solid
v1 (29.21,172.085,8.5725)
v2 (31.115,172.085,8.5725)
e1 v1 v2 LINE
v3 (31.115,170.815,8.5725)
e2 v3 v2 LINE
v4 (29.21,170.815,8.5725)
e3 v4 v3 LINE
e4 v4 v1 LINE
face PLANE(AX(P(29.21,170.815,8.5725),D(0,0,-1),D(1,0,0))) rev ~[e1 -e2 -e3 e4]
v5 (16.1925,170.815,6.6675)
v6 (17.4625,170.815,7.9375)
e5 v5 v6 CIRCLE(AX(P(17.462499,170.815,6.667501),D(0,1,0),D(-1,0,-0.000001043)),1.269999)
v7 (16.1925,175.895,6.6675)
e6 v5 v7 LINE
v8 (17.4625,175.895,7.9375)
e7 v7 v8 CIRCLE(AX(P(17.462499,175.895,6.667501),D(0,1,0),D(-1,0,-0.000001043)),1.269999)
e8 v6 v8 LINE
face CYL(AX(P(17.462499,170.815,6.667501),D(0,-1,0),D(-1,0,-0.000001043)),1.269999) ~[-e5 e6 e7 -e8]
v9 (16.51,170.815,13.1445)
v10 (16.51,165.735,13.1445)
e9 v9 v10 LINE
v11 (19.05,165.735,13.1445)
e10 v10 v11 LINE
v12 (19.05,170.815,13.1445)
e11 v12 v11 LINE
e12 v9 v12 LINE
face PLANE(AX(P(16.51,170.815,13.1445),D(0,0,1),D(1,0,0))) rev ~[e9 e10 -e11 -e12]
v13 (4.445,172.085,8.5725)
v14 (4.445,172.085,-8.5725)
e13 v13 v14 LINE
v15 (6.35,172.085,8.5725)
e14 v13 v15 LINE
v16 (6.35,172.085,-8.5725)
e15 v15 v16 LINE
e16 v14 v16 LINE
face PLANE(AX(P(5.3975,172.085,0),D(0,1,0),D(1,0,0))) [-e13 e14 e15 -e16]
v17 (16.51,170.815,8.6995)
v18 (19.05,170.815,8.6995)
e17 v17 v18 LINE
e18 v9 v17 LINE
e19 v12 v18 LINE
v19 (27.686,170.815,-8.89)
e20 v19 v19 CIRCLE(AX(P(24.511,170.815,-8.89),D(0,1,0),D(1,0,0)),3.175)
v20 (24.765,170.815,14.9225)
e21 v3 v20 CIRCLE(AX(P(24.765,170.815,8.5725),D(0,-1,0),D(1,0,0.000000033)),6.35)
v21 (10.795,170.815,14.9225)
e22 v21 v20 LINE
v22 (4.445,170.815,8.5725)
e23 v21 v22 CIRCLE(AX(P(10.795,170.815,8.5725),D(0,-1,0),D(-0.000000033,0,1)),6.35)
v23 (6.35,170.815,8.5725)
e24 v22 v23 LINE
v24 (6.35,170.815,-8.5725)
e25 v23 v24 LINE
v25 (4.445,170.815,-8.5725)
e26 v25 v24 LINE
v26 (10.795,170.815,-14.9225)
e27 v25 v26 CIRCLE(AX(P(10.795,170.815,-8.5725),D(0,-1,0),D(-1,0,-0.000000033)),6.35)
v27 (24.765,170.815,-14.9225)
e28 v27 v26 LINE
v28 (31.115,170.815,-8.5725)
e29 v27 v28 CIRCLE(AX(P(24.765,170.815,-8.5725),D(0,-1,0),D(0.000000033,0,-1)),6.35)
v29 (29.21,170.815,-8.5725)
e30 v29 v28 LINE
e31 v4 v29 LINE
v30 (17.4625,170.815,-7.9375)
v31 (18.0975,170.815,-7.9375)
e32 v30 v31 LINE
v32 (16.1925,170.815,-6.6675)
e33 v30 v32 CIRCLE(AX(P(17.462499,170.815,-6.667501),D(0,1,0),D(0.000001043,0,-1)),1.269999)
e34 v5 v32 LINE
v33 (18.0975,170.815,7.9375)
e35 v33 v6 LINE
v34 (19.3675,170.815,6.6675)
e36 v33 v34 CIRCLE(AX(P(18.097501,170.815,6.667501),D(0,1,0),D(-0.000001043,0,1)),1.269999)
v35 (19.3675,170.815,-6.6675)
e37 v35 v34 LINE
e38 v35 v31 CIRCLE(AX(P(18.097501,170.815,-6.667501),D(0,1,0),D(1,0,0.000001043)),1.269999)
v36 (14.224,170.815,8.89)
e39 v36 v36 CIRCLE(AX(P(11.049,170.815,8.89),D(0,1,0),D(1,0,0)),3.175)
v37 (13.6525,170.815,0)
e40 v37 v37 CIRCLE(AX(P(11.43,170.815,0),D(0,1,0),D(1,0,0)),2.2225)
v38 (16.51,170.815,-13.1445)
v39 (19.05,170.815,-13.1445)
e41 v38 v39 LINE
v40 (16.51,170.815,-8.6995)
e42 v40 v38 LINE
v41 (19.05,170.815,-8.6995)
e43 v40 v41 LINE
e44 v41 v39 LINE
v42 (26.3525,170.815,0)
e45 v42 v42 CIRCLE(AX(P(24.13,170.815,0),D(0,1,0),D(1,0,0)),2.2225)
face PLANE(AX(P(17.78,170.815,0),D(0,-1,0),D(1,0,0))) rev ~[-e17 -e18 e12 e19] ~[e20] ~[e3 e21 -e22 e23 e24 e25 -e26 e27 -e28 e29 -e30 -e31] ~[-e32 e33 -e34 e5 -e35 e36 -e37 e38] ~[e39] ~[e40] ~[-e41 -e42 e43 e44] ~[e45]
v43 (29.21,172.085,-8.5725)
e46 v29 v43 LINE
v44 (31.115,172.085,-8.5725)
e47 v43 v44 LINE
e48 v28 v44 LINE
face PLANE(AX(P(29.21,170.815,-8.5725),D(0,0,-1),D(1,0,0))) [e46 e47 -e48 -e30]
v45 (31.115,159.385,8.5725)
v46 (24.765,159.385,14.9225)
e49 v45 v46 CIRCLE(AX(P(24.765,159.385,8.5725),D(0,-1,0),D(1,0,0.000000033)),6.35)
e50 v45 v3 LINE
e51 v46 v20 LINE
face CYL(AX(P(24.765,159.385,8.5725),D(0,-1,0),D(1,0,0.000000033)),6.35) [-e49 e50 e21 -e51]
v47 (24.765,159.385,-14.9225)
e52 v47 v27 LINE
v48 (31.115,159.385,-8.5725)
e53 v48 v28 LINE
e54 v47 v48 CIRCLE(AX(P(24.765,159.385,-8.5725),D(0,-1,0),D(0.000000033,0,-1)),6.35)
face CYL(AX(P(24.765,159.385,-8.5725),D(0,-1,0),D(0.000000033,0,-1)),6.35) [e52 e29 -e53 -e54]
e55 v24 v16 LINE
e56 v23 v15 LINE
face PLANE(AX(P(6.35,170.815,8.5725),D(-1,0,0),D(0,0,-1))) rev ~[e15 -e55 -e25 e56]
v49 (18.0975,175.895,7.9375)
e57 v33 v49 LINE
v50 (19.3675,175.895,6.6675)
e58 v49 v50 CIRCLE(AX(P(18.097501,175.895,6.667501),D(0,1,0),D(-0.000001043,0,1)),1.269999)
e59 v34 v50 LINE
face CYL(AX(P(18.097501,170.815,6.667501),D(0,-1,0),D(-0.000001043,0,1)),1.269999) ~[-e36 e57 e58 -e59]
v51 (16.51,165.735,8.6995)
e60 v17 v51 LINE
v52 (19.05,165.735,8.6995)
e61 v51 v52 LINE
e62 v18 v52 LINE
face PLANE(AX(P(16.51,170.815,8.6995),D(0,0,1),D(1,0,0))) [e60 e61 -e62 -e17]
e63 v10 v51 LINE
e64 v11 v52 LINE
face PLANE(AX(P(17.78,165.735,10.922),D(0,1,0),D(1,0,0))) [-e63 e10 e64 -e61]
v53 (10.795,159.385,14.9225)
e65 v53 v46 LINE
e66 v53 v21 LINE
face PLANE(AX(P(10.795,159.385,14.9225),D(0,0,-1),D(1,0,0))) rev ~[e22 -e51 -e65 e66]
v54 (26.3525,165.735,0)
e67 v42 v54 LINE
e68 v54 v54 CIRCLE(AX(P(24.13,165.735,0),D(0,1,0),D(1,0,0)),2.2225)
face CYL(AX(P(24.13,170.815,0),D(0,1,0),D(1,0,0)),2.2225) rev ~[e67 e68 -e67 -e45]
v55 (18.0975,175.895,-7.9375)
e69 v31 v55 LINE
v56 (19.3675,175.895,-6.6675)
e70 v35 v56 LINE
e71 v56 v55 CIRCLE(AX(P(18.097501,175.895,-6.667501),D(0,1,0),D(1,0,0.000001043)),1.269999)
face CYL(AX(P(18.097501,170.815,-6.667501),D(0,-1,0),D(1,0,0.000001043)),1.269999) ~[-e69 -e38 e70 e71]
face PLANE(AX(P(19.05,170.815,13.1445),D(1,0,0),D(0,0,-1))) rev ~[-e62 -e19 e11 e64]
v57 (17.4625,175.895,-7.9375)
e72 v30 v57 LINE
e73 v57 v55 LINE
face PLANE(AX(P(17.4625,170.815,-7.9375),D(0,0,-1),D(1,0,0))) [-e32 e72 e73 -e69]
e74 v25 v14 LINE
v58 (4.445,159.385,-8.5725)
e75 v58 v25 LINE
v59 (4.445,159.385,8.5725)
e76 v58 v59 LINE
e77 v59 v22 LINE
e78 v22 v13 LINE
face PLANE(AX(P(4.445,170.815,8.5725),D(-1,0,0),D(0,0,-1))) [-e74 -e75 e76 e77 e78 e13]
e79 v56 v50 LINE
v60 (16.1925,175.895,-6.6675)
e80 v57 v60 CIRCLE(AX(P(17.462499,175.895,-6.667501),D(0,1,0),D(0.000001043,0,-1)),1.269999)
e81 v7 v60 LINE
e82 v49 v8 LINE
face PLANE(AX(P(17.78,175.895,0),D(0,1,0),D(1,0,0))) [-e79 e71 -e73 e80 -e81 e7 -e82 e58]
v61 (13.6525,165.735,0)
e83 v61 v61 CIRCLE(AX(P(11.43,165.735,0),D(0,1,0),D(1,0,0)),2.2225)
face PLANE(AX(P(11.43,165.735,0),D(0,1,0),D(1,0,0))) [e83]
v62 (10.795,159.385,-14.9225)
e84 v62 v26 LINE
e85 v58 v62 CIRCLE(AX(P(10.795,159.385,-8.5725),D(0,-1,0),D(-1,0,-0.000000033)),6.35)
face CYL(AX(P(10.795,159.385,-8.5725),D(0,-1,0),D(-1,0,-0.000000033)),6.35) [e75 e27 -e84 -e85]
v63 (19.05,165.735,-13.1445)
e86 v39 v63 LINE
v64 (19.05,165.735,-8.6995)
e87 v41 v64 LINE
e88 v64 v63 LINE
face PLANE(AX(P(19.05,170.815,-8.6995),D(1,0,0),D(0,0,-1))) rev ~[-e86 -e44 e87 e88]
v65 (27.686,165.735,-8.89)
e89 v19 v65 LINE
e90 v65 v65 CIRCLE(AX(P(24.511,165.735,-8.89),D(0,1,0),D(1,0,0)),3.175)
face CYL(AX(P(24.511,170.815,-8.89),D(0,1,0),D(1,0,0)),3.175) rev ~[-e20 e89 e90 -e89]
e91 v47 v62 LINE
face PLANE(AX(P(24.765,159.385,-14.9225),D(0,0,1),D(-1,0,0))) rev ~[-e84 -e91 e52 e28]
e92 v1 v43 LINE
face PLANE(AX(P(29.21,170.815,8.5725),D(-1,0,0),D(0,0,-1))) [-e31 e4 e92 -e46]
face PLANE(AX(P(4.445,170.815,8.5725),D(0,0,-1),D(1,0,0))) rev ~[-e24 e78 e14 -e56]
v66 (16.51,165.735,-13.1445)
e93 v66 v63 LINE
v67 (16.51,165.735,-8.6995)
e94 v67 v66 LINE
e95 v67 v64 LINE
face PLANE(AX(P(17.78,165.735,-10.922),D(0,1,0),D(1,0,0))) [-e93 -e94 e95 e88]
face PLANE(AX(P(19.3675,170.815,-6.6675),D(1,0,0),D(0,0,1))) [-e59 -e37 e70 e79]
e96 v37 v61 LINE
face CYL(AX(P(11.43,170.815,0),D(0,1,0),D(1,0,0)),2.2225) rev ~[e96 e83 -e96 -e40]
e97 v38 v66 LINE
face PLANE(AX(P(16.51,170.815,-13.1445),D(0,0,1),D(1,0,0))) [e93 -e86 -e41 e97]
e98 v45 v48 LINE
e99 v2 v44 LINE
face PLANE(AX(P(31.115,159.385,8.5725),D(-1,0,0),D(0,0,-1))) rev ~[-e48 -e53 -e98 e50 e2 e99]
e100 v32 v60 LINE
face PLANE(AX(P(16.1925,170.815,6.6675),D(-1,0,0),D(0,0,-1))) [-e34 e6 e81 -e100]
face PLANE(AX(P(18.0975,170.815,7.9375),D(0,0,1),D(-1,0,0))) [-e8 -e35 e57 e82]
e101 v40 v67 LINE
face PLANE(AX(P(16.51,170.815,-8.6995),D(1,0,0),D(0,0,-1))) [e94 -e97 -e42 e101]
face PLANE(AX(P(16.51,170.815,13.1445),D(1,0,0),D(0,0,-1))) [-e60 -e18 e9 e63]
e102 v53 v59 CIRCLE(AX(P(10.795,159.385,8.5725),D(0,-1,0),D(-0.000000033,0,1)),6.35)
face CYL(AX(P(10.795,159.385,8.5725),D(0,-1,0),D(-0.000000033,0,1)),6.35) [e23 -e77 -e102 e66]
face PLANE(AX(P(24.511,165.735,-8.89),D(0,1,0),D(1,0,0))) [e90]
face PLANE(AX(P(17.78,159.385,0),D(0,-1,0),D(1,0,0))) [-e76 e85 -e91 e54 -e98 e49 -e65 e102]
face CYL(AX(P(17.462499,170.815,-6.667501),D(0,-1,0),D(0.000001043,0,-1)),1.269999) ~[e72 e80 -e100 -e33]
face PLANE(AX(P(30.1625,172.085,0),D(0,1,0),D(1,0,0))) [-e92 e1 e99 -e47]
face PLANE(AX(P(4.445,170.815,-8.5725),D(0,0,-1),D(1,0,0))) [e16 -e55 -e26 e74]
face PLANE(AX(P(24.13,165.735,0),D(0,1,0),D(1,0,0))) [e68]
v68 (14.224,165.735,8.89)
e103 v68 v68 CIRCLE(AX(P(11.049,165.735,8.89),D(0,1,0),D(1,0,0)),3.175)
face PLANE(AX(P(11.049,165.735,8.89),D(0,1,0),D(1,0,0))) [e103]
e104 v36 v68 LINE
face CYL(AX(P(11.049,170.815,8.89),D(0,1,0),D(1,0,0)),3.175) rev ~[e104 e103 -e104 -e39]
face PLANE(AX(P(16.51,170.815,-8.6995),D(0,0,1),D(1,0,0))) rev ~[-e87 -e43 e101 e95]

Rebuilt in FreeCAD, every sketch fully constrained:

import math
import FreeCAD as App
import Part
import Sketcher

V = App.Vector
Q = App.Units.Quantity

doc = App.newDocument("Part")
body = doc.addObject("PartDesign::Body", "Body")

# Sketch on XZ plane
sketch1 = body.newObject("Sketcher::SketchObject", "Sketch")
sketch1.AttachmentSupport = (doc.getObject("XZ_Plane"), [""])
sketch1.MapMode = "FlatFace"
sketch1.addGeometry(Part.ArcOfCircle(Part.Circle(V(-7, 9, 0), V(0, 0, 1), 6), math.radians(90), math.radians(180)), False)
sketch1.addGeometry(Part.LineSegment(V(-13, 9, 0), V(-13, -9, 0)), False)
sketch1.addGeometry(Part.ArcOfCircle(Part.Circle(V(-7, -9, 0), V(0, 0, 1), 6), math.radians(-180), math.radians(-90)), False)
sketch1.addGeometry(Part.LineSegment(V(-7, -15, 0), V(7, -15, 0)), False)
sketch1.addGeometry(Part.ArcOfCircle(Part.Circle(V(7, -9, 0), V(0, 0, 1), 6), math.radians(-90), math.radians(0)), False)
sketch1.addGeometry(Part.LineSegment(V(13, -9, 0), V(13, 9, 0)), False)
sketch1.addGeometry(Part.ArcOfCircle(Part.Circle(V(7, 9, 0), V(0, 0, 1), 6), math.radians(0), math.radians(90)), False)
sketch1.addGeometry(Part.LineSegment(V(7, 15, 0), V(-7, 15, 0)), False)
sketch1.addConstraint(Sketcher.Constraint("Tangent", 0, 2, 1, 1))
sketch1.addConstraint(Sketcher.Constraint("Tangent", 1, 2, 2, 1))
sketch1.addConstraint(Sketcher.Constraint("Tangent", 2, 2, 3, 1))
sketch1.addConstraint(Sketcher.Constraint("Tangent", 3, 2, 4, 1))
sketch1.addConstraint(Sketcher.Constraint("Tangent", 4, 2, 5, 1))
sketch1.addConstraint(Sketcher.Constraint("Tangent", 5, 2, 6, 1))
sketch1.addConstraint(Sketcher.Constraint("Tangent", 6, 2, 7, 1))
sketch1.addConstraint(Sketcher.Constraint("Tangent", 7, 2, 0, 1))
sketch1.addConstraint(Sketcher.Constraint("Vertical", 1))
sketch1.addConstraint(Sketcher.Constraint("Horizontal", 3))
sketch1.addConstraint(Sketcher.Constraint("Vertical", 5))
sketch1.addConstraint(Sketcher.Constraint("Horizontal", 7))
sketch1.addConstraint(Sketcher.Constraint("Equal", 0, 2))
sketch1.addConstraint(Sketcher.Constraint("Equal", 2, 4))
sketch1.addConstraint(Sketcher.Constraint("Equal", 4, 6))
sketch1.addConstraint(Sketcher.Constraint("Symmetric", 0, 3, 4, 3, -1, 1))
sketch1.addConstraint(Sketcher.Constraint("Radius", 0, Q("0.25 in")))
sketch1.addConstraint(Sketcher.Constraint("DistanceX", 3, 1, 3, 2, Q("0.55 in")))
sketch1.addConstraint(Sketcher.Constraint("DistanceY", 1, 2, 1, 1, Q("0.675 in")))
pad1 = body.newObject("PartDesign::Pad", "Pad")
pad1.Profile = sketch1
pad1.Length = Q("0.45 in")
pad1.Reversed = True

# Sketch on XZ plane
sketch2 = body.newObject("Sketcher::SketchObject", "Sketch001")
sketch2.AttachmentSupport = (doc.getObject("XZ_Plane"), [""])
sketch2.MapMode = "FlatFace"
sketch2.AttachmentOffset = App.Placement(V(0, 0, -0.45 * 25.4), App.Rotation())
sketch2.addGeometry(Part.LineSegment(V(-13.3, -8.6, 0), V(-13.3, 8.6, 0)), False)
sketch2.addGeometry(Part.LineSegment(V(-13.3, 8.6, 0), V(-11.4, 8.6, 0)), False)
sketch2.addGeometry(Part.LineSegment(V(-11.4, 8.6, 0), V(-11.4, -8.6, 0)), False)
sketch2.addGeometry(Part.LineSegment(V(-11.4, -8.6, 0), V(-13.3, -8.6, 0)), False)
sketch2.addGeometry(Part.LineSegment(V(11.4, -8.6, 0), V(11.4, 8.6, 0)), False)
sketch2.addGeometry(Part.LineSegment(V(11.4, 8.6, 0), V(13.3, 8.6, 0)), False)
sketch2.addGeometry(Part.LineSegment(V(13.3, 8.6, 0), V(13.3, -8.6, 0)), False)
sketch2.addGeometry(Part.LineSegment(V(13.3, -8.6, 0), V(11.4, -8.6, 0)), False)
sketch2.addConstraint(Sketcher.Constraint("Coincident", 0, 2, 1, 1))
sketch2.addConstraint(Sketcher.Constraint("Coincident", 1, 2, 2, 1))
sketch2.addConstraint(Sketcher.Constraint("Coincident", 2, 2, 3, 1))
sketch2.addConstraint(Sketcher.Constraint("Coincident", 3, 2, 0, 1))
sketch2.addConstraint(Sketcher.Constraint("Coincident", 4, 2, 5, 1))
sketch2.addConstraint(Sketcher.Constraint("Coincident", 5, 2, 6, 1))
sketch2.addConstraint(Sketcher.Constraint("Coincident", 6, 2, 7, 1))
sketch2.addConstraint(Sketcher.Constraint("Coincident", 7, 2, 4, 1))
sketch2.addConstraint(Sketcher.Constraint("Vertical", 0))
sketch2.addConstraint(Sketcher.Constraint("Horizontal", 1))
sketch2.addConstraint(Sketcher.Constraint("Vertical", 2))
sketch2.addConstraint(Sketcher.Constraint("Horizontal", 3))
sketch2.addConstraint(Sketcher.Constraint("Vertical", 4))
sketch2.addConstraint(Sketcher.Constraint("Horizontal", 5))
sketch2.addConstraint(Sketcher.Constraint("Vertical", 6))
sketch2.addConstraint(Sketcher.Constraint("Horizontal", 7))
sketch2.addConstraint(Sketcher.Constraint("Symmetric", 2, 2, 4, 2, -1, 1))
sketch2.addConstraint(Sketcher.Constraint("Symmetric", 0, 2, 6, 2, -1, 1))
sketch2.addConstraint(Sketcher.Constraint("Horizontal", 1, 2, 4, 2))
sketch2.addConstraint(Sketcher.Constraint("DistanceX", 1, 2, 4, 2, Q("0.9 in")))
sketch2.addConstraint(Sketcher.Constraint("DistanceX", 1, 1, 1, 2, Q("0.075 in")))
sketch2.addConstraint(Sketcher.Constraint("DistanceY", 0, 1, 0, 2, Q("0.675 in")))
pad2 = body.newObject("PartDesign::Pad", "Pad001")
pad2.Profile = sketch2
pad2.Length = Q("0.05 in")
pad2.Reversed = True

# Sketch on XZ plane
sketch3 = body.newObject("Sketcher::SketchObject", "Sketch002")
sketch3.AttachmentSupport = (doc.getObject("XZ_Plane"), [""])
sketch3.MapMode = "FlatFace"
sketch3.AttachmentOffset = App.Placement(V(0, 0, -0.45 * 25.4), App.Rotation())
sketch3.addGeometry(Part.ArcOfCircle(Part.Circle(V(-0.3, -6.7, 0), V(0, 0, 1), 1.3), math.radians(180), math.radians(270)), False)
sketch3.addGeometry(Part.LineSegment(V(-1.6, -6.7, 0), V(-1.6, 6.7, 0)), False)
sketch3.addGeometry(Part.ArcOfCircle(Part.Circle(V(-0.3, 6.7, 0), V(0, 0, 1), 1.3), math.radians(90), math.radians(180)), False)
sketch3.addGeometry(Part.LineSegment(V(-0.3, 7.9, 0), V(0.3, 7.9, 0)), False)
sketch3.addGeometry(Part.ArcOfCircle(Part.Circle(V(0.3, 6.7, 0), V(0, 0, 1), 1.3), math.radians(0), math.radians(90)), False)
sketch3.addGeometry(Part.LineSegment(V(1.6, 6.7, 0), V(1.6, -6.7, 0)), False)
sketch3.addGeometry(Part.ArcOfCircle(Part.Circle(V(0.3, -6.7, 0), V(0, 0, 1), 1.3), math.radians(-90), math.radians(0)), False)
sketch3.addGeometry(Part.LineSegment(V(0.3, -7.9, 0), V(-0.3, -7.9, 0)), False)
sketch3.addConstraint(Sketcher.Constraint("Tangent", 0, 1, 1, 1))
sketch3.addConstraint(Sketcher.Constraint("Tangent", 1, 2, 2, 2))
sketch3.addConstraint(Sketcher.Constraint("Tangent", 2, 1, 3, 1))
sketch3.addConstraint(Sketcher.Constraint("Tangent", 3, 2, 4, 2))
sketch3.addConstraint(Sketcher.Constraint("Tangent", 4, 1, 5, 1))
sketch3.addConstraint(Sketcher.Constraint("Tangent", 5, 2, 6, 2))
sketch3.addConstraint(Sketcher.Constraint("Tangent", 6, 1, 7, 1))
sketch3.addConstraint(Sketcher.Constraint("Tangent", 7, 2, 0, 2))
sketch3.addConstraint(Sketcher.Constraint("Vertical", 1))
sketch3.addConstraint(Sketcher.Constraint("Horizontal", 3))
sketch3.addConstraint(Sketcher.Constraint("Vertical", 5))
sketch3.addConstraint(Sketcher.Constraint("Horizontal", 7))
sketch3.addConstraint(Sketcher.Constraint("Equal", 0, 2))
sketch3.addConstraint(Sketcher.Constraint("Equal", 2, 4))
sketch3.addConstraint(Sketcher.Constraint("Equal", 4, 6))
sketch3.addConstraint(Sketcher.Constraint("Symmetric", 0, 3, 4, 3, -1, 1))
sketch3.addConstraint(Sketcher.Constraint("Radius", 0, Q("0.0499999 in")))
sketch3.addConstraint(Sketcher.Constraint("DistanceX", 3, 1, 3, 2, Q("0.025 in")))
sketch3.addConstraint(Sketcher.Constraint("DistanceY", 1, 1, 1, 2, Q("0.525 in")))
pad3 = body.newObject("PartDesign::Pad", "Pad002")
pad3.Profile = sketch3
pad3.Length = Q("0.2 in")
pad3.Reversed = True

# Sketch on XZ plane
sketch4 = body.newObject("Sketcher::SketchObject", "Sketch003")
sketch4.AttachmentSupport = (doc.getObject("XZ_Plane"), [""])
sketch4.MapMode = "FlatFace"
sketch4.AttachmentOffset = App.Placement(V(0, 0, -0.45 * 25.4), App.Rotation())
sketch4.addGeometry(Part.Circle(V(-6.7, 8.9, 0), V(0, 0, 1), 3.2), False)
sketch4.addGeometry(Part.Circle(V(6.7, -8.9, 0), V(0, 0, 1), 3.2), False)
sketch4.addGeometry(Part.Circle(V(-6.3, 0, 0), V(0, 0, 1), 2.2), False)
sketch4.addGeometry(Part.Circle(V(6.3, 0, 0), V(0, 0, 1), 2.2), False)
sketch4.addGeometry(Part.LineSegment(V(-1.3, 8.7, 0), V(-1.3, 13.1, 0)), False)
sketch4.addGeometry(Part.LineSegment(V(-1.3, 13.1, 0), V(1.3, 13.1, 0)), False)
sketch4.addGeometry(Part.LineSegment(V(1.3, 13.1, 0), V(1.3, 8.7, 0)), False)
sketch4.addGeometry(Part.LineSegment(V(1.3, 8.7, 0), V(-1.3, 8.7, 0)), False)
sketch4.addGeometry(Part.LineSegment(V(-1.3, -13.1, 0), V(-1.3, -8.7, 0)), False)
sketch4.addGeometry(Part.LineSegment(V(-1.3, -8.7, 0), V(1.3, -8.7, 0)), False)
sketch4.addGeometry(Part.LineSegment(V(1.3, -8.7, 0), V(1.3, -13.1, 0)), False)
sketch4.addGeometry(Part.LineSegment(V(1.3, -13.1, 0), V(-1.3, -13.1, 0)), False)
sketch4.addConstraint(Sketcher.Constraint("Coincident", 4, 2, 5, 1))
sketch4.addConstraint(Sketcher.Constraint("Coincident", 5, 2, 6, 1))
sketch4.addConstraint(Sketcher.Constraint("Coincident", 6, 2, 7, 1))
sketch4.addConstraint(Sketcher.Constraint("Coincident", 7, 2, 4, 1))
sketch4.addConstraint(Sketcher.Constraint("Coincident", 8, 2, 9, 1))
sketch4.addConstraint(Sketcher.Constraint("Coincident", 9, 2, 10, 1))
sketch4.addConstraint(Sketcher.Constraint("Coincident", 10, 2, 11, 1))
sketch4.addConstraint(Sketcher.Constraint("Coincident", 11, 2, 8, 1))
sketch4.addConstraint(Sketcher.Constraint("Vertical", 4))
sketch4.addConstraint(Sketcher.Constraint("Horizontal", 5))
sketch4.addConstraint(Sketcher.Constraint("Vertical", 6))
sketch4.addConstraint(Sketcher.Constraint("Horizontal", 7))
sketch4.addConstraint(Sketcher.Constraint("Vertical", 8))
sketch4.addConstraint(Sketcher.Constraint("Horizontal", 9))
sketch4.addConstraint(Sketcher.Constraint("Vertical", 10))
sketch4.addConstraint(Sketcher.Constraint("Horizontal", 11))
sketch4.addConstraint(Sketcher.Constraint("Equal", 0, 1))
sketch4.addConstraint(Sketcher.Constraint("Equal", 2, 3))
sketch4.addConstraint(Sketcher.Constraint("Symmetric", 0, 3, 1, 3, -1, 1))
sketch4.addConstraint(Sketcher.Constraint("Symmetric", 2, 3, 3, 3, -1, 1))
sketch4.addConstraint(Sketcher.Constraint("Symmetric", 6, 2, 8, 2, -1, 1))
sketch4.addConstraint(Sketcher.Constraint("Symmetric", 4, 2, 10, 2, -1, 1))
sketch4.addConstraint(Sketcher.Constraint("PointOnObject", 2, 3, -1))
sketch4.addConstraint(Sketcher.Constraint("Vertical", 7, 2, 8, 2))
sketch4.addConstraint(Sketcher.Constraint("Diameter", 0, Q("0.25 in")))
sketch4.addConstraint(Sketcher.Constraint("Diameter", 2, Q("0.175 in")))
sketch4.addConstraint(Sketcher.Constraint("DistanceX", 5, 1, 5, 2, Q("0.1 in")))
sketch4.addConstraint(Sketcher.Constraint("DistanceY", 1, 3, 0, 3, Q("0.7 in")))
sketch4.addConstraint(Sketcher.Constraint("DistanceX", 2, 3, 3, 3, Q("0.5 in")))
sketch4.addConstraint(Sketcher.Constraint("DistanceY", 4, 1, 4, 2, Q("0.175 in")))
sketch4.addConstraint(Sketcher.Constraint("DistanceX", 0, 3, 1, 3, Q("0.53 in")))
sketch4.addConstraint(Sketcher.Constraint("DistanceY", 8, 2, 7, 2, Q("0.685 in")))
pocket1 = body.newObject("PartDesign::Pocket", "Pocket")
pocket1.Profile = sketch4
pocket1.Length = Q("0.2 in")
pocket1.Reversed = True
body2 = doc.addObject("PartDesign::Body", "Body001")
doc.recompute()

body.Placement = App.Placement(V(17.78, 159.385, 0), App.Rotation(V(0, 0, 1), 0))
boolean = body2.newObject("PartDesign::Boolean", "Boolean")
boolean.Type = "Fuse"
boolean.addObjects([body])

doc.recompute()
